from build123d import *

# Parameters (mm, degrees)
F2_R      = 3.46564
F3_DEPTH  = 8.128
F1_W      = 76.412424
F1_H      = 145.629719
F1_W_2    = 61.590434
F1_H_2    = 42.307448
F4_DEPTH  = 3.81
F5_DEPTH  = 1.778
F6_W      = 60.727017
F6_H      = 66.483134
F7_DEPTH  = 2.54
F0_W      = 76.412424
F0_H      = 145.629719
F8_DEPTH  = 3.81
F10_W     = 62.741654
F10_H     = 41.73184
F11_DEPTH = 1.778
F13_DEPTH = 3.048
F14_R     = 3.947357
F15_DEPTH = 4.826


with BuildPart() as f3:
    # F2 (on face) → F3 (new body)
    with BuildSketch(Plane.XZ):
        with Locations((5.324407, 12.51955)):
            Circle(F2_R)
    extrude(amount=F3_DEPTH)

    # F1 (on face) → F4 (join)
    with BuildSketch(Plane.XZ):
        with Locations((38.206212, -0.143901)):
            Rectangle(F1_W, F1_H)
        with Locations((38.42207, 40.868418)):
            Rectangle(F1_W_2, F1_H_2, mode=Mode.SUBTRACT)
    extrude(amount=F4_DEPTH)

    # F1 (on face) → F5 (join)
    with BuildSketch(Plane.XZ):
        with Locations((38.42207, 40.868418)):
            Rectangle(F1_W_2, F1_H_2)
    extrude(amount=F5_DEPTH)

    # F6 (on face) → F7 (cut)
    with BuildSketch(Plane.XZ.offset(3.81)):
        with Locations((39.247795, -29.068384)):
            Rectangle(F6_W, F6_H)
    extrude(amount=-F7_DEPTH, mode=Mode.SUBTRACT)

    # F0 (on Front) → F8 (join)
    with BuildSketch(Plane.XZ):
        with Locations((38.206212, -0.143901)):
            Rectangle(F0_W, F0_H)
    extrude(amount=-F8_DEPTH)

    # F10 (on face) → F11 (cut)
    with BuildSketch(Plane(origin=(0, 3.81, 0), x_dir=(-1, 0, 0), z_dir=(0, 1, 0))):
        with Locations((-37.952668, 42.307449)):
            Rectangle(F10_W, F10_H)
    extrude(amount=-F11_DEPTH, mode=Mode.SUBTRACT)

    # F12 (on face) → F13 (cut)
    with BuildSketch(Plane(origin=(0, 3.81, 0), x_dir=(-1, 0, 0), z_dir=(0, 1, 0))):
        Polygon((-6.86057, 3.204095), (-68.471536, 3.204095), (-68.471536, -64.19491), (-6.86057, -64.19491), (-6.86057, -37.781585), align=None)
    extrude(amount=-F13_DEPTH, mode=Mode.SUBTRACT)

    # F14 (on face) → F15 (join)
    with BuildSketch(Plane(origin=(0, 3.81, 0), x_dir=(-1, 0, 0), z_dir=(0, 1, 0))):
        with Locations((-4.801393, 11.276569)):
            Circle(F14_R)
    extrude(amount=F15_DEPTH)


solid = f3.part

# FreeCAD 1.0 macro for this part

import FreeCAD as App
import Part
import Sketcher
from FreeCAD import Vector
Q = App.Units.Quantity

doc = App.newDocument("Part")
body = doc.addObject("PartDesign::Body", "Body")

# Sketch on XZ plane
sketch1 = doc.addObject("Sketcher::SketchObject", "Sketch")
body.addObject(sketch1)
sketch1.AttachmentSupport = (doc.XZ_Plane, [""])
sketch1.MapMode = "FlatFace"
sketch1.addGeometry(Part.Circle(Vector(5.324407, 12.51955, 0), Vector(0, 0, 1), 3.46564), False)
sketch1.addConstraint([
    Sketcher.Constraint("Diameter", 0, 6.93128),
    Sketcher.Constraint("DistanceY", -1, 1, 0, 3, 12.51955),
    Sketcher.Constraint("DistanceX", -1, 1, 0, 3, 5.324407),
])
pad1 = doc.addObject("PartDesign::Pad", "Pad")
body.addObject(pad1)
pad1.Profile = sketch1
pad1.Length = Q("0.32 in")

# Sketch on XZ plane
sketch2 = doc.addObject("Sketcher::SketchObject", "Sketch001")
body.addObject(sketch2)
sketch2.AttachmentSupport = (doc.XZ_Plane, [""])
sketch2.MapMode = "FlatFace"
sketch2.addGeometry([
    Part.LineSegment(Vector(0, 72.670958, 0), Vector(0, -72.95876, 0)),  # 0
    Part.LineSegment(Vector(0, -72.95876, 0), Vector(76.412424, -72.95876, 0)),  # 1
    Part.LineSegment(Vector(76.412424, -72.95876, 0), Vector(76.412424, 72.670958, 0)),  # 2
    Part.LineSegment(Vector(76.412424, 72.670958, 0), Vector(0, 72.670958, 0)),  # 3
    Part.LineSegment(Vector(69.217287, 19.714694, 0), Vector(7.626853, 19.714694, 0)),  # 4
    Part.LineSegment(Vector(7.626853, 19.714694, 0), Vector(7.626853, 62.022142, 0)),  # 5
    Part.LineSegment(Vector(7.626853, 62.022142, 0), Vector(69.217287, 62.022142, 0)),  # 6
    Part.LineSegment(Vector(69.217287, 62.022142, 0), Vector(69.217287, 19.714694, 0)),  # 7
], False)
sketch2.addConstraint([
    Sketcher.Constraint("Coincident", 0, 2, 1, 1),
    Sketcher.Constraint("Coincident", 1, 2, 2, 1),
    Sketcher.Constraint("Coincident", 2, 2, 3, 1),
    Sketcher.Constraint("Coincident", 3, 2, 0, 1),
    Sketcher.Constraint("Coincident", 4, 2, 5, 1),
    Sketcher.Constraint("Coincident", 5, 2, 6, 1),
    Sketcher.Constraint("Coincident", 6, 2, 7, 1),
    Sketcher.Constraint("Coincident", 7, 2, 4, 1),
    Sketcher.Constraint("Vertical", 0),
    Sketcher.Constraint("Horizontal", 1),
    Sketcher.Constraint("Vertical", 2),
    Sketcher.Constraint("Horizontal", 3),
    Sketcher.Constraint("Horizontal", 4),
    Sketcher.Constraint("Vertical", 5),
    Sketcher.Constraint("Horizontal", 6),
    Sketcher.Constraint("Vertical", 7),
    Sketcher.Constraint("PointOnObject", 0, 2, -2),
    Sketcher.Constraint("DistanceY", 0, 2, 0, 1, 145.629719),
    Sketcher.Constraint("DistanceX", 1, 1, 1, 2, 76.412424),
    Sketcher.Constraint("DistanceX", 4, 2, 4, 1, 61.590434),
    Sketcher.Constraint("DistanceY", 5, 1, 5, 2, 42.307448),
    Sketcher.Constraint("DistanceY", 0, 2, -1, 1, 72.95876),
    Sketcher.Constraint("DistanceX", 4, 2, 2, 2, 68.785571),
    Sketcher.Constraint("DistanceY", -1, 1, 4, 2, 19.714694),
])
pad2 = doc.addObject("PartDesign::Pad", "Pad001")
body.addObject(pad2)
pad2.Profile = sketch2
pad2.Length = Q("0.15 in")

# Sketch on XZ plane
sketch3 = doc.addObject("Sketcher::SketchObject", "Sketch002")
body.addObject(sketch3)
sketch3.AttachmentSupport = (doc.XZ_Plane, [""])
sketch3.MapMode = "FlatFace"
sketch3.addGeometry([
    Part.LineSegment(Vector(7.626853, 62.022142, 0), Vector(7.626853, 19.714694, 0)),
    Part.LineSegment(Vector(7.626853, 19.714694, 0), Vector(69.217287, 19.714694, 0)),
    Part.LineSegment(Vector(69.217287, 19.714694, 0), Vector(69.217287, 62.022142, 0)),
    Part.LineSegment(Vector(69.217287, 62.022142, 0), Vector(7.626853, 62.022142, 0)),
], False)
sketch3.addConstraint([
    Sketcher.Constraint("Coincident", 0, 2, 1, 1),
    Sketcher.Constraint("Coincident", 1, 2, 2, 1),
    Sketcher.Constraint("Coincident", 2, 2, 3, 1),
    Sketcher.Constraint("Coincident", 3, 2, 0, 1),
    Sketcher.Constraint("Vertical", 0),
    Sketcher.Constraint("Horizontal", 1),
    Sketcher.Constraint("Vertical", 2),
    Sketcher.Constraint("Horizontal", 3),
    Sketcher.Constraint("DistanceX", 1, 1, 1, 2, 61.590434),
    Sketcher.Constraint("DistanceY", 0, 2, 0, 1, 42.307448),
    Sketcher.Constraint("DistanceX", -1, 1, 0, 2, 7.626853),
    Sketcher.Constraint("DistanceY", -1, 1, 0, 2, 19.714694),
])
pad3 = doc.addObject("PartDesign::Pad", "Pad002")
body.addObject(pad3)
pad3.Profile = sketch3
pad3.Length = Q("0.07 in")

# Sketch on XZ plane
sketch4 = doc.addObject("Sketcher::SketchObject", "Sketch003")
body.addObject(sketch4)
sketch4.AttachmentSupport = (doc.XZ_Plane, [""])
sketch4.MapMode = "FlatFace"
sketch4.AttachmentOffset = App.Placement(Vector(0, 0, 0.15 * 25.4), App.Rotation())
sketch4.addGeometry([
    Part.LineSegment(Vector(8.884286, 4.173183, 0), Vector(8.884286, -62.309951, 0)),
    Part.LineSegment(Vector(8.884286, -62.309951, 0), Vector(69.611304, -62.309951, 0)),
    Part.LineSegment(Vector(69.611304, -62.309951, 0), Vector(69.611304, 4.173183, 0)),
    Part.LineSegment(Vector(69.611304, 4.173183, 0), Vector(8.884286, 4.173183, 0)),
], False)
sketch4.addConstraint([
    Sketcher.Constraint("Coincident", 0, 2, 1, 1),
    Sketcher.Constraint("Coincident", 1, 2, 2, 1),
    Sketcher.Constraint("Coincident", 2, 2, 3, 1),
    Sketcher.Constraint("Coincident", 3, 2, 0, 1),
    Sketcher.Constraint("Vertical", 0),
    Sketcher.Constraint("Horizontal", 1),
    Sketcher.Constraint("Vertical", 2),
    Sketcher.Constraint("Horizontal", 3),
    Sketcher.Constraint("DistanceX", 1, 1, 1, 2, 60.727017),
    Sketcher.Constraint("DistanceY", 0, 2, 0, 1, 66.483134),
    Sketcher.Constraint("DistanceY", 0, 2, -1, 1, 62.309951),
    Sketcher.Constraint("DistanceX", -1, 1, 0, 2, 8.884286),
])
pocket1 = doc.addObject("PartDesign::Pocket", "Pocket")
body.addObject(pocket1)
pocket1.Profile = sketch4
pocket1.Length = Q("0.1 in")

# Sketch on XZ plane
sketch5 = doc.addObject("Sketcher::SketchObject", "Sketch004")
body.addObject(sketch5)
sketch5.AttachmentSupport = (doc.XZ_Plane, [""])
sketch5.MapMode = "FlatFace"
sketch5.addGeometry([
    Part.LineSegment(Vector(0, 72.670958, 0), Vector(0, -72.95876, 0)),
    Part.LineSegment(Vector(0, -72.95876, 0), Vector(76.412424, -72.95876, 0)),
    Part.LineSegment(Vector(76.412424, -72.95876, 0), Vector(76.412424, 72.670958, 0)),
    Part.LineSegment(Vector(76.412424, 72.670958, 0), Vector(0, 72.670958, 0)),
], False)
sketch5.addConstraint([
    Sketcher.Constraint("Coincident", 0, 2, 1, 1),
    Sketcher.Constraint("Coincident", 1, 2, 2, 1),
    Sketcher.Constraint("Coincident", 2, 2, 3, 1),
    Sketcher.Constraint("Coincident", 3, 2, 0, 1),
    Sketcher.Constraint("Vertical", 0),
    Sketcher.Constraint("Horizontal", 1),
    Sketcher.Constraint("Vertical", 2),
    Sketcher.Constraint("Horizontal", 3),
    Sketcher.Constraint("PointOnObject", 0, 2, -2),
    Sketcher.Constraint("DistanceY", 0, 2, 0, 1, 145.629719),
    Sketcher.Constraint("DistanceX", 1, 1, 1, 2, 76.412424),
    Sketcher.Constraint("DistanceY", 0, 2, -1, 1, 72.95876),
])
pad4 = doc.addObject("PartDesign::Pad", "Pad003")
body.addObject(pad4)
pad4.Profile = sketch5
pad4.Length = Q("0.15 in")
pad4.Reversed = True

# Sketch on XZ plane
sketch6 = doc.addObject("Sketcher::SketchObject", "Sketch005")
body.addObject(sketch6)
sketch6.AttachmentSupport = (doc.XZ_Plane, [""])
sketch6.MapMode = "FlatFace"
sketch6.AttachmentOffset = App.Placement(Vector(0, 0, -0.15 * 25.4), App.Rotation())
sketch6.addGeometry([
    Part.LineSegment(Vector(69.323495, 63.173369, 0), Vector(69.323495, 21.441529, 0)),
    Part.LineSegment(Vector(69.323495, 21.441529, 0), Vector(6.581841, 21.441529, 0)),
    Part.LineSegment(Vector(6.581841, 21.441529, 0), Vector(6.581841, 63.173369, 0)),
    Part.LineSegment(Vector(6.581841, 63.173369, 0), Vector(69.323495, 63.173369, 0)),
], False)
sketch6.addConstraint([
    Sketcher.Constraint("Coincident", 0, 2, 1, 1),
    Sketcher.Constraint("Coincident", 1, 2, 2, 1),
    Sketcher.Constraint("Coincident", 2, 2, 3, 1),
    Sketcher.Constraint("Coincident", 3, 2, 0, 1),
    Sketcher.Constraint("Vertical", 0),
    Sketcher.Constraint("Horizontal", 1),
    Sketcher.Constraint("Vertical", 2),
    Sketcher.Constraint("Horizontal", 3),
    Sketcher.Constraint("DistanceY", 0, 2, 0, 1, 41.73184),
    Sketcher.Constraint("DistanceX", 1, 2, 1, 1, 62.741654),
    Sketcher.Constraint("DistanceY", -1, 1, 0, 2, 21.441529),
    Sketcher.Constraint("DistanceX", -1, 1, 1, 2, 6.581841),
])
pocket2 = doc.addObject("PartDesign::Pocket", "Pocket001")
body.addObject(pocket2)
pocket2.Profile = sketch6
pocket2.Length = Q("0.07 in")
pocket2.Reversed = True

# Sketch on XZ plane
sketch7 = doc.addObject("Sketcher::SketchObject", "Sketch006")
body.addObject(sketch7)
sketch7.AttachmentSupport = (doc.XZ_Plane, [""])
sketch7.MapMode = "FlatFace"
sketch7.AttachmentOffset = App.Placement(Vector(0, 0, -0.15 * 25.4), App.Rotation())
sketch7.addGeometry([
    Part.LineSegment(Vector(6.86057, 3.204095, 0), Vector(68.471536, 3.204095, 0)),
    Part.LineSegment(Vector(68.471536, 3.204095, 0), Vector(68.471536, -64.19491, 0)),
    Part.LineSegment(Vector(68.471536, -64.19491, 0), Vector(6.86057, -64.19491, 0)),
    Part.LineSegment(Vector(6.86057, -64.19491, 0), Vector(6.86057, 3.204095, 0)),
], False)
sketch7.addConstraint([
    Sketcher.Constraint("Coincident", 0, 2, 1, 1),
    Sketcher.Constraint("Coincident", 1, 2, 2, 1),
    Sketcher.Constraint("Coincident", 2, 2, 3, 1),
    Sketcher.Constraint("Coincident", 3, 2, 0, 1),
    Sketcher.Constraint("Horizontal", 0),
    Sketcher.Constraint("Vertical", 1),
    Sketcher.Constraint("Horizontal", 2),
    Sketcher.Constraint("Vertical", 3),
    Sketcher.Constraint("DistanceX", 0, 1, 0, 2, 61.610966),
    Sketcher.Constraint("DistanceY", 1, 2, 1, 1, 67.399005),
    Sketcher.Constraint("DistanceY", 1, 2, -1, 1, 64.19491),
    Sketcher.Constraint("DistanceX", -1, 1, 2, 2, 6.86057),
])
pocket3 = doc.addObject("PartDesign::Pocket", "Pocket002")
body.addObject(pocket3)
pocket3.Profile = sketch7
pocket3.Length = Q("0.12 in")
pocket3.Reversed = True

# Sketch on XZ plane
sketch8 = doc.addObject("Sketcher::SketchObject", "Sketch007")
body.addObject(sketch8)
sketch8.AttachmentSupport = (doc.XZ_Plane, [""])
sketch8.MapMode = "FlatFace"
sketch8.AttachmentOffset = App.Placement(Vector(0, 0, -0.15 * 25.4), App.Rotation())
sketch8.addGeometry(Part.Circle(Vector(4.801393, 11.276569, 0), Vector(0, 0, 1), 3.947357), False)
sketch8.addConstraint([
    Sketcher.Constraint("Diameter", 0, 7.894714),
    Sketcher.Constraint("DistanceY", -1, 1, 0, 3, 11.276569),
    Sketcher.Constraint("DistanceX", -1, 1, 0, 3, 4.801393),
])
pad5 = doc.addObject("PartDesign::Pad", "Pad004")
body.addObject(pad5)
pad5.Profile = sketch8
pad5.Length = Q("0.19 in")
pad5.Reversed = True

doc.recompute()
